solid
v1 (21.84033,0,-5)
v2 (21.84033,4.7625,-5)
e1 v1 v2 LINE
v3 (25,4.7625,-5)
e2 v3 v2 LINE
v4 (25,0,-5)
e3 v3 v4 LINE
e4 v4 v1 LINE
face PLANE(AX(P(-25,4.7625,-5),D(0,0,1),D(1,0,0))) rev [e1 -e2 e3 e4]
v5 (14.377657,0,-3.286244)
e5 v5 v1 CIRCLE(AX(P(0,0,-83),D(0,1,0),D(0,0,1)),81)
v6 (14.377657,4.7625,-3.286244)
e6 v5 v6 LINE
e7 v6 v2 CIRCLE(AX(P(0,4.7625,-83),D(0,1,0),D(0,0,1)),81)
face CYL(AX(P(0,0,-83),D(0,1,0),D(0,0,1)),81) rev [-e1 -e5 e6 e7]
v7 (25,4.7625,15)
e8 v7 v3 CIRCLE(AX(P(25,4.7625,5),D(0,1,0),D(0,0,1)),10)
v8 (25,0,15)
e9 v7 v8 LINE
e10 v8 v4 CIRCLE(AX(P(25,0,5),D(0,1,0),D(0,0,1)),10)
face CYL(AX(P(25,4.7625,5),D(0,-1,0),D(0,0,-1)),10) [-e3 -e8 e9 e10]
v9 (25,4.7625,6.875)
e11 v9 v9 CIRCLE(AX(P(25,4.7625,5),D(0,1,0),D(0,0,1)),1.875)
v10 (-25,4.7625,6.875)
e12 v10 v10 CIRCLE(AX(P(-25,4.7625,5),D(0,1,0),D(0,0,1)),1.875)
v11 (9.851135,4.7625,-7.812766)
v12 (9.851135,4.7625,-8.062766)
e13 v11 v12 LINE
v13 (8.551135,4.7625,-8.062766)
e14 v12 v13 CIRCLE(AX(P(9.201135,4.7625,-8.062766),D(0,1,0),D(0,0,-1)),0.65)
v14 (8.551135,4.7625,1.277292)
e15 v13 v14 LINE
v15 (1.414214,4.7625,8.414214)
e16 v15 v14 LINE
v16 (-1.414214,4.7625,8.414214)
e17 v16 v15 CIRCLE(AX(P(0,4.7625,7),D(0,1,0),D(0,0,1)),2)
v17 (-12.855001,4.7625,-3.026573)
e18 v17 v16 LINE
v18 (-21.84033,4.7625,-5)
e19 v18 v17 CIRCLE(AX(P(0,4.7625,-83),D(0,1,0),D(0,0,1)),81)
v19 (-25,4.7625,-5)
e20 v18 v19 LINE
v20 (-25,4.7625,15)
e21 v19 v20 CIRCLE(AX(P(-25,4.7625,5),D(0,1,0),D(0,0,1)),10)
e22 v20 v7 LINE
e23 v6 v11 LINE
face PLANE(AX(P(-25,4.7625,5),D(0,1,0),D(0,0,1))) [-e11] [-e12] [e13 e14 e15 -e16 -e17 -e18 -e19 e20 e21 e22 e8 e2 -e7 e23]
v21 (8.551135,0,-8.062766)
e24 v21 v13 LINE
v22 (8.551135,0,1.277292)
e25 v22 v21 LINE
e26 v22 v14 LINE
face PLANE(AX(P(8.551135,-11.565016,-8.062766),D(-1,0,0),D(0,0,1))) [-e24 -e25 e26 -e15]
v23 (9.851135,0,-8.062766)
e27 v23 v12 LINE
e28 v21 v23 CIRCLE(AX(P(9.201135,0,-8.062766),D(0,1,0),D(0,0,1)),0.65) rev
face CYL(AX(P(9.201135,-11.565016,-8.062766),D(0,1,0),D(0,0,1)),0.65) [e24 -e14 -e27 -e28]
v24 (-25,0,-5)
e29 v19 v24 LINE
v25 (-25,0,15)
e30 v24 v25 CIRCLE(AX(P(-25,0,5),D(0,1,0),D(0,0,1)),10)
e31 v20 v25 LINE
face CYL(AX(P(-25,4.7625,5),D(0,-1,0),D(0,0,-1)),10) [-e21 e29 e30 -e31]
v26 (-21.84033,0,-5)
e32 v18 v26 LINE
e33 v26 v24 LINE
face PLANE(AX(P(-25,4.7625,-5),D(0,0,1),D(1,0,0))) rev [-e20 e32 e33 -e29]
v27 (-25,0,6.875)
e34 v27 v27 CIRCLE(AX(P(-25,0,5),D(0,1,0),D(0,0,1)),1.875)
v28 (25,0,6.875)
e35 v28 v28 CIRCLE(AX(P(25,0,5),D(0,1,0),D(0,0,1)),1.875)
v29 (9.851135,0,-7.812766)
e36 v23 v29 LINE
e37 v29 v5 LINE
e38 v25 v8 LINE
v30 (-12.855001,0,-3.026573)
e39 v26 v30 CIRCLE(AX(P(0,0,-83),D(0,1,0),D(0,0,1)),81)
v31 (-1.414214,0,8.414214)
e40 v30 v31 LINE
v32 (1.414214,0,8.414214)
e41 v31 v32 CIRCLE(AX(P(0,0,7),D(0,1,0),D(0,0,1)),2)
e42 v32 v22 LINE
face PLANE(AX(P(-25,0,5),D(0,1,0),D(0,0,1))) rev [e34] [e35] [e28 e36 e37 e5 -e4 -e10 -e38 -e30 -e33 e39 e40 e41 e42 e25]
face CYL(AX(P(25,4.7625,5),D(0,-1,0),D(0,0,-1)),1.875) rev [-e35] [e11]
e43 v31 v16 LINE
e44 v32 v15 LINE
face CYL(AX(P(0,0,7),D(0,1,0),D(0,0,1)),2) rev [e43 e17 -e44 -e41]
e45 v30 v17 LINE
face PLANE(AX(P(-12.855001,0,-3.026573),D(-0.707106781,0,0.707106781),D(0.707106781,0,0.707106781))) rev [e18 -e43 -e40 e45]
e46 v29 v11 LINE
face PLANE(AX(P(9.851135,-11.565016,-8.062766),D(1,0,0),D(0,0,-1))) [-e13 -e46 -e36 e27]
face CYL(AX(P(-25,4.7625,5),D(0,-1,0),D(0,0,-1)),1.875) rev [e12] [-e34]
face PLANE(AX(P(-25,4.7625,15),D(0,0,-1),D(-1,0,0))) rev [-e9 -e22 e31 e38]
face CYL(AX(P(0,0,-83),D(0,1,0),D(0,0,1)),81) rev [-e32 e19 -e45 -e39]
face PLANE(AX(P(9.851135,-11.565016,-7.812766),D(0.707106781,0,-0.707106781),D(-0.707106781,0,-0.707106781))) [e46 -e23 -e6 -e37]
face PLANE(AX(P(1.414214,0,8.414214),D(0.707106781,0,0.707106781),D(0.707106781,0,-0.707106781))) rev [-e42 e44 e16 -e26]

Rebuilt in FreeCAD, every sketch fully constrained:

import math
import FreeCAD as App
import Part
import Sketcher

V = App.Vector
Q = App.Units.Quantity

doc = App.newDocument("Part")
params = doc.addObject("Spreadsheet::Sheet", "Params")
for row, (alias, value) in enumerate([
    ("sketch1_radius", "10 mm"),
    ("sketch1_diameter", "3.75 mm"),
    ("sketch1_width", "50 mm"),
    ("pad1_length", "4.7625 mm"),
    ("sketch2_radius", "2 mm"),
    ("sketch2_radius2", "81 mm"),
    ("sketch3_radius", "0.65 mm"),
    ("sketch3_height", "0.25 mm"),
    ("pad2_length", "4.7625 mm"),
], start=1):
    params.set(f"A{row}", alias)
    params.set(f"B{row}", "=" + value)
    params.setAlias(f"B{row}", alias)

body = doc.addObject("PartDesign::Body", "Body")

sketch1 = body.newObject("Sketcher::SketchObject", "Sketch")
sketch1.AttachmentSupport = (doc.getObject("XZ_Plane"), [""])
sketch1.MapMode = "FlatFace"
sketch1.addGeometry(Part.LineSegment(V(25, -5, 0), V(-25, -5, 0)), False)
sketch1.addGeometry(Part.ArcOfCircle(Part.Circle(V(-25, 5, 0), V(0, 0, 1), 10), math.radians(90), math.radians(270)), False)
sketch1.addGeometry(Part.LineSegment(V(-25, 15, 0), V(25, 15, 0)), False)
sketch1.addGeometry(Part.ArcOfCircle(Part.Circle(V(25, 5, 0), V(0, 0, 1), 10), math.radians(-90), math.radians(90)), False)
sketch1.addGeometry(Part.Circle(V(25, 5, 0), V(0, 0, 1), 1.9), False)
sketch1.addGeometry(Part.Circle(V(-25, 5, 0), V(0, 0, 1), 1.9), False)
sketch1.addConstraint(Sketcher.Constraint("Tangent", 0, 2, 1, 2))
sketch1.addConstraint(Sketcher.Constraint("Tangent", 1, 1, 2, 1))
sketch1.addConstraint(Sketcher.Constraint("Tangent", 2, 2, 3, 2))
sketch1.addConstraint(Sketcher.Constraint("Tangent", 3, 1, 0, 1))
sketch1.addConstraint(Sketcher.Constraint("Horizontal", 0))
sketch1.addConstraint(Sketcher.Constraint("Horizontal", 2))
sketch1.addConstraint(Sketcher.Constraint("Coincident", 4, 3, 3, 3))
sketch1.addConstraint(Sketcher.Constraint("Coincident", 5, 3, 1, 3))
sketch1.addConstraint(Sketcher.Constraint("Equal", 4, 5))
sketch1.addConstraint(Sketcher.Constraint("Radius", 1, 10.0))
sketch1.addConstraint(Sketcher.Constraint("Diameter", 4, 3.75))
sketch1.addConstraint(Sketcher.Constraint("DistanceX", 0, 2, 0, 1, 50.0))
sketch1.addConstraint(Sketcher.Constraint("DistanceX", 1, 3, -1, 1, 25.0))
sketch1.addConstraint(Sketcher.Constraint("DistanceY", -1, 1, 1, 3, 5.0))
sketch1.setExpression("Constraints[9]", "Params.sketch1_radius")
sketch1.setExpression("Constraints[10]", "Params.sketch1_diameter")
sketch1.setExpression("Constraints[11]", "Params.sketch1_width")
pad1 = body.newObject("PartDesign::Pad", "Pad")
pad1.Profile = sketch1
pad1.setExpression("Length", "Params.pad1_length")
pad1.Reversed = True

sketch2 = body.newObject("Sketcher::SketchObject", "Sketch001")
sketch2.AttachmentSupport = (doc.getObject("XZ_Plane"), [""])
sketch2.MapMode = "FlatFace"
sketch2.AttachmentOffset = App.Placement(V(0, 0, -4.7625), App.Rotation())
sketch2.addGeometry(Part.LineSegment(V(-12.9, -3, 0), V(-1.4, 8.4, 0)), False)
sketch2.addGeometry(Part.ArcOfCircle(Part.Circle(V(0, 7, 0), V(0, 0, 1), 2), math.radians(45), math.radians(135)), False)
sketch2.addGeometry(Part.LineSegment(V(1.4, 8.4, 0), V(12.9, -3, 0)), False)
sketch2.addGeometry(Part.ArcOfCircle(Part.Circle(V(0, -83, 0), V(0, 0, 1), 81), math.radians(99), math.radians(441)), False)
sketch2.addConstraint(Sketcher.Constraint("Tangent", 0, 2, 1, 2))
sketch2.addConstraint(Sketcher.Constraint("Tangent", 1, 1, 2, 1))
sketch2.addConstraint(Sketcher.Constraint("Coincident", 2, 2, 3, 2))
sketch2.addConstraint(Sketcher.Constraint("Coincident", 3, 1, 0, 1))
sketch2.addConstraint(Sketcher.Constraint("Symmetric", 0, 2, 1, 1, -2))
sketch2.addConstraint(Sketcher.Constraint("PointOnObject", 3, 3, -2))
sketch2.addConstraint(Sketcher.Constraint("Perpendicular", 0, 2))
sketch2.addConstraint(Sketcher.Constraint("Radius", 1, 2.0))
sketch2.addConstraint(Sketcher.Constraint("Radius", 3, 81.0))
sketch2.addConstraint(Sketcher.Constraint("DistanceY", -1, 1, 1, 3, 7.0))
sketch2.addConstraint(Sketcher.Constraint("DistanceY", 3, 3, -1, 1, 83.0))
sketch2.setExpression("Constraints[7]", "Params.sketch2_radius")
sketch2.setExpression("Constraints[8]", "Params.sketch2_radius2")
pocket1 = body.newObject("PartDesign::Pocket", "Pocket")
pocket1.Profile = sketch2
pocket1.Type = "ThroughAll"
pocket1.Reversed = True

sketch3 = body.newObject("Sketcher::SketchObject", "Sketch002")
sketch3.AttachmentSupport = (doc.getObject("XZ_Plane"), [""])
sketch3.MapMode = "FlatFace"
sketch3.AttachmentOffset = App.Placement(V(0, 0, -4.7625), App.Rotation())
sketch3.addGeometry(Part.LineSegment(V(8.55, 1.28, 0), V(14.38, -3.29, 0)), False)
sketch3.addGeometry(Part.LineSegment(V(14.38, -3.29, 0), V(9.85, -7.81, 0)), False)
sketch3.addGeometry(Part.LineSegment(V(9.85, -7.81, 0), V(9.85, -8.06, 0)), False)
sketch3.addGeometry(Part.ArcOfCircle(Part.Circle(V(9.2, -8.06, 0), V(0, 0, 1), 0.65), math.radians(180), math.radians(360)), False)
sketch3.addGeometry(Part.LineSegment(V(8.55, -8.06, 0), V(8.55, 1.28, 0)), False)
sketch3.addConstraint(Sketcher.Constraint("Coincident", 0, 2, 1, 1))
sketch3.addConstraint(Sketcher.Constraint("Coincident", 1, 2, 2, 1))
sketch3.addConstraint(Sketcher.Constraint("Tangent", 2, 2, 3, 2))
sketch3.addConstraint(Sketcher.Constraint("Tangent", 3, 1, 4, 1))
sketch3.addConstraint(Sketcher.Constraint("Coincident", 4, 2, 0, 1))
sketch3.addConstraint(Sketcher.Constraint("Vertical", 2))
sketch3.addConstraint(Sketcher.Constraint("Vertical", 4))
sketch3.addConstraint(Sketcher.Constraint("Angle", 1, Q("-135 deg")))
sketch3.addConstraint(Sketcher.Constraint("Radius", 3, 0.65))
sketch3.addConstraint(Sketcher.Constraint("DistanceY", 2, 2, 2, 1, 0.25))
sketch3.addConstraint(Sketcher.Constraint("Distance", 0, 7.40096))
sketch3.addConstraint(Sketcher.Constraint("Distance", 1, 6.401469))
sketch3.addConstraint(Sketcher.Constraint("DistanceY", -1, 1, 4, 2, 1.277292))
sketch3.addConstraint(Sketcher.Constraint("DistanceX", -1, 1, 3, 3, 9.201135))
sketch3.setExpression("Constraints[8]", "Params.sketch3_radius")
sketch3.setExpression("Constraints[9]", "Params.sketch3_height")
pad2 = body.newObject("PartDesign::Pad", "Pad001")
pad2.Profile = sketch3
pad2.setExpression("Length", "Params.pad2_length")

doc.recompute()
